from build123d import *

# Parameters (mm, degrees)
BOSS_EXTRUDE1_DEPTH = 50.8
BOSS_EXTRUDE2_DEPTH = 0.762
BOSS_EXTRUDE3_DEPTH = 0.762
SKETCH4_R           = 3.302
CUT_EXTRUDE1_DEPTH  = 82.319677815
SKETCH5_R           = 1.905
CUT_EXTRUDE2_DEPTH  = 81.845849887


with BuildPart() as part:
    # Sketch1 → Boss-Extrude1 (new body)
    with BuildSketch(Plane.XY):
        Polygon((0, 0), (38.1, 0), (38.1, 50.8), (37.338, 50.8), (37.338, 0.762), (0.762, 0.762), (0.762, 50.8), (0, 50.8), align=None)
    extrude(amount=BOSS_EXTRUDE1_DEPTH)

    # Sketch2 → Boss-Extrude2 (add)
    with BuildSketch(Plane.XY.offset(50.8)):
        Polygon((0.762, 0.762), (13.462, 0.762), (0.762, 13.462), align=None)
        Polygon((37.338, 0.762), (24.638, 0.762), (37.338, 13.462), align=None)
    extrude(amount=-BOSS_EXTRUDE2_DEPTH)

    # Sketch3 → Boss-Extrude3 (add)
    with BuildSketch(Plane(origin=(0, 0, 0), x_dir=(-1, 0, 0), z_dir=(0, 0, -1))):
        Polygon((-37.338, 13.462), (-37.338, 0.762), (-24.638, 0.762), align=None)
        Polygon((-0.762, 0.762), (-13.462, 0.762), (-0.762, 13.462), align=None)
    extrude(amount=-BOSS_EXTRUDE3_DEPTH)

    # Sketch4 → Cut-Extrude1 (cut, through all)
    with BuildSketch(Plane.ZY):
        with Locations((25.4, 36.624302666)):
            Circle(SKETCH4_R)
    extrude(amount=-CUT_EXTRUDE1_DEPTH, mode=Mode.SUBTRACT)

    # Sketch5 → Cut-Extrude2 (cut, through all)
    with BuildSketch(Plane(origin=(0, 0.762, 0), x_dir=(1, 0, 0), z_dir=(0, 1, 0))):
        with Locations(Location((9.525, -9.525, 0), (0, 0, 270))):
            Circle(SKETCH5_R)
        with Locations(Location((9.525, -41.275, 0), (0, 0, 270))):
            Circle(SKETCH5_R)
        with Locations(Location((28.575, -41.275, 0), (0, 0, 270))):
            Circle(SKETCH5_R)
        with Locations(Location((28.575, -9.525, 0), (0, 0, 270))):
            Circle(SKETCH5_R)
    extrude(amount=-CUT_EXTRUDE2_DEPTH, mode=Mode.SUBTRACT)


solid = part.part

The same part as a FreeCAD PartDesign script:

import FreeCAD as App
import Part
import Sketcher
from FreeCAD import Vector
Q = App.Units.Quantity


def add_polygon(sketch, points):
    """Adds a closed chain of lines whose ends are joined by coincident constraints."""
    first, n = sketch.GeometryCount, len(points)
    for a, b in zip(points, points[1:] + points[:1]):
        sketch.addGeometry(Part.LineSegment(App.Vector(*a, 0), App.Vector(*b, 0)), False)
    for i in range(n):
        sketch.addConstraint(Sketcher.Constraint("Coincident", first + i, 2, first + (i + 1) % n, 1))

doc = App.newDocument("Part")
body = doc.addObject("PartDesign::Body", "Body")

# Sketch on XY plane
sketch1 = body.newObject("Sketcher::SketchObject", "Sketch")
sketch1.AttachmentSupport = (doc.getObject("XY_Plane"), [""])
sketch1.MapMode = "FlatFace"
add_polygon(sketch1, [(0, 0), (38.1, 0), (38.1, 50.8), (37.3, 50.8), (37.3, 0.8), (0.8, 0.8), (0.8, 50.8), (0, 50.8)])  # lines 0-7
sketch1.addConstraint([
    Sketcher.Constraint("Horizontal", 0),
    Sketcher.Constraint("Vertical", 1),
    Sketcher.Constraint("Horizontal", 2),
    Sketcher.Constraint("Vertical", 3),
    Sketcher.Constraint("Horizontal", 4),
    Sketcher.Constraint("Vertical", 5),
    Sketcher.Constraint("Horizontal", 6),
    Sketcher.Constraint("Vertical", 7),
    Sketcher.Constraint("Coincident", 7, 2, -1, 1),
    Sketcher.Constraint("Horizontal", 2, 2, 5, 2),
    Sketcher.Constraint("Equal", 2, 6),
    Sketcher.Constraint("DistanceY", 1, 1, 1, 2, Q("2 in")),
    Sketcher.Constraint("DistanceX", 0, 1, 0, 2, Q("1.5 in")),
    Sketcher.Constraint("DistanceX", 2, 2, 2, 1, Q("0.03 in")),
    Sketcher.Constraint("DistanceY", 3, 2, 3, 1, Q("1.97 in")),
])
pad1 = body.newObject("PartDesign::Pad", "Pad")
pad1.Profile = sketch1
pad1.Length = Q("2 in")

# Sketch on XY plane
sketch2 = body.newObject("Sketcher::SketchObject", "Sketch001")
sketch2.AttachmentSupport = (doc.getObject("XY_Plane"), [""])
sketch2.MapMode = "FlatFace"
sketch2.AttachmentOffset = App.Placement(Vector(0, 0, 2 * 25.4), App.Rotation())
add_polygon(sketch2, [(1, 1), (13, 1), (1, 13)])  # lines 0-2
add_polygon(sketch2, [(25, 1), (37, 1), (37, 13)])  # lines 3-5
sketch2.addConstraint([
    Sketcher.Constraint("Horizontal", 0),
    Sketcher.Constraint("Vertical", 2),
    Sketcher.Constraint("Horizontal", 3),
    Sketcher.Constraint("Vertical", 4),
    Sketcher.Constraint("Perpendicular", 1, 5),
    Sketcher.Constraint("Horizontal", 2, 2, 3, 2),
    Sketcher.Constraint("Horizontal", 1, 2, 4, 2),
    Sketcher.Constraint("Equal", 0, 3),
    Sketcher.Constraint("DistanceX", 0, 1, 0, 2, Q("0.5 in")),
    Sketcher.Constraint("DistanceX", -1, 1, 0, 2, Q("0.53 in")),
    Sketcher.Constraint("DistanceY", -1, 1, 0, 2, Q("0.03 in")),
    Sketcher.Constraint("DistanceX", -1, 1, 3, 2, Q("1.47 in")),
])
pad2 = body.newObject("PartDesign::Pad", "Pad001")
pad2.Profile = sketch2
pad2.Length = Q("0.03 in")
pad2.Reversed = True

# Sketch on XY plane
sketch3 = body.newObject("Sketcher::SketchObject", "Sketch002")
sketch3.AttachmentSupport = (doc.getObject("XY_Plane"), [""])
sketch3.MapMode = "FlatFace"
add_polygon(sketch3, [(37, 13), (37, 1), (25, 1)])  # lines 0-2
add_polygon(sketch3, [(13, 1), (1, 1), (1, 13)])  # lines 3-5
sketch3.addConstraint([
    Sketcher.Constraint("Vertical", 0),
    Sketcher.Constraint("Horizontal", 1),
    Sketcher.Constraint("Horizontal", 3),
    Sketcher.Constraint("Vertical", 4),
    Sketcher.Constraint("Perpendicular", 2, 5),
    Sketcher.Constraint("Horizontal", 1, 2, 3, 2),
    Sketcher.Constraint("Horizontal", 2, 2, 4, 2),
    Sketcher.Constraint("Equal", 1, 3),
    Sketcher.Constraint("DistanceX", 1, 2, 1, 1, Q("0.5 in")),
    Sketcher.Constraint("DistanceX", -1, 1, 0, 2, Q("1.47 in")),
    Sketcher.Constraint("DistanceY", -1, 1, 0, 2, Q("0.03 in")),
    Sketcher.Constraint("DistanceX", -1, 1, 3, 2, Q("0.03 in")),
])
pad3 = body.newObject("PartDesign::Pad", "Pad002")
pad3.Profile = sketch3
pad3.Length = Q("0.03 in")

# Sketch on YZ plane
sketch4 = body.newObject("Sketcher::SketchObject", "Sketch003")
sketch4.AttachmentSupport = (doc.getObject("YZ_Plane"), [""])
sketch4.MapMode = "FlatFace"
sketch4.addGeometry(Part.Circle(Vector(36.6, 25.4, 0), Vector(0, 0, 1), 3.3), False)
sketch4.addConstraint([
    Sketcher.Constraint("Diameter", 0, Q("0.26 in")),
    Sketcher.Constraint("DistanceY", -1, 1, 0, 3, Q("1 in")),
    Sketcher.Constraint("DistanceX", -1, 1, 0, 3, 36.624303),
])
pocket1 = body.newObject("PartDesign::Pocket", "Pocket")
pocket1.Profile = sketch4
pocket1.Type = "ThroughAll"
pocket1.Reversed = True

# Sketch on XZ plane
sketch5 = body.newObject("Sketcher::SketchObject", "Sketch004")
sketch5.AttachmentSupport = (doc.getObject("XZ_Plane"), [""])
sketch5.MapMode = "FlatFace"
sketch5.AttachmentOffset = App.Placement(Vector(0, 0, -0.03 * 25.4), App.Rotation())
sketch5.addGeometry([
    Part.Circle(Vector(9.5, 9.5, 0), Vector(0, 0, 1), 1.9),
    Part.Circle(Vector(9.5, 41.3, 0), Vector(0, 0, 1), 1.9),
    Part.Circle(Vector(28.6, 41.3, 0), Vector(0, 0, 1), 1.9),
    Part.Circle(Vector(28.6, 9.5, 0), Vector(0, 0, 1), 1.9),
], False)
sketch5.addConstraint([
    Sketcher.Constraint("Equal", 0, 1),
    Sketcher.Constraint("Equal", 1, 2),
    Sketcher.Constraint("Equal", 2, 3),
    Sketcher.Constraint("Horizontal", 1, 3, 2, 3),
    Sketcher.Constraint("Horizontal", 0, 3, 3, 3),
    Sketcher.Constraint("Vertical", 0, 3, 1, 3),
    Sketcher.Constraint("Vertical", 2, 3, 3, 3),
    Sketcher.Constraint("Diameter", 0, Q("0.15 in")),
    Sketcher.Constraint("DistanceY", 0, 3, 1, 3, Q("1.25 in")),
    Sketcher.Constraint("DistanceX", 1, 3, 2, 3, Q("0.75 in")),
    Sketcher.Constraint("DistanceX", -1, 1, 0, 3, Q("0.375 in")),
    Sketcher.Constraint("DistanceY", -1, 1, 0, 3, Q("0.375 in")),
])
pocket2 = body.newObject("PartDesign::Pocket", "Pocket001")
pocket2.Profile = sketch5
pocket2.Type = "ThroughAll"
pocket2.Reversed = True

doc.recompute()
